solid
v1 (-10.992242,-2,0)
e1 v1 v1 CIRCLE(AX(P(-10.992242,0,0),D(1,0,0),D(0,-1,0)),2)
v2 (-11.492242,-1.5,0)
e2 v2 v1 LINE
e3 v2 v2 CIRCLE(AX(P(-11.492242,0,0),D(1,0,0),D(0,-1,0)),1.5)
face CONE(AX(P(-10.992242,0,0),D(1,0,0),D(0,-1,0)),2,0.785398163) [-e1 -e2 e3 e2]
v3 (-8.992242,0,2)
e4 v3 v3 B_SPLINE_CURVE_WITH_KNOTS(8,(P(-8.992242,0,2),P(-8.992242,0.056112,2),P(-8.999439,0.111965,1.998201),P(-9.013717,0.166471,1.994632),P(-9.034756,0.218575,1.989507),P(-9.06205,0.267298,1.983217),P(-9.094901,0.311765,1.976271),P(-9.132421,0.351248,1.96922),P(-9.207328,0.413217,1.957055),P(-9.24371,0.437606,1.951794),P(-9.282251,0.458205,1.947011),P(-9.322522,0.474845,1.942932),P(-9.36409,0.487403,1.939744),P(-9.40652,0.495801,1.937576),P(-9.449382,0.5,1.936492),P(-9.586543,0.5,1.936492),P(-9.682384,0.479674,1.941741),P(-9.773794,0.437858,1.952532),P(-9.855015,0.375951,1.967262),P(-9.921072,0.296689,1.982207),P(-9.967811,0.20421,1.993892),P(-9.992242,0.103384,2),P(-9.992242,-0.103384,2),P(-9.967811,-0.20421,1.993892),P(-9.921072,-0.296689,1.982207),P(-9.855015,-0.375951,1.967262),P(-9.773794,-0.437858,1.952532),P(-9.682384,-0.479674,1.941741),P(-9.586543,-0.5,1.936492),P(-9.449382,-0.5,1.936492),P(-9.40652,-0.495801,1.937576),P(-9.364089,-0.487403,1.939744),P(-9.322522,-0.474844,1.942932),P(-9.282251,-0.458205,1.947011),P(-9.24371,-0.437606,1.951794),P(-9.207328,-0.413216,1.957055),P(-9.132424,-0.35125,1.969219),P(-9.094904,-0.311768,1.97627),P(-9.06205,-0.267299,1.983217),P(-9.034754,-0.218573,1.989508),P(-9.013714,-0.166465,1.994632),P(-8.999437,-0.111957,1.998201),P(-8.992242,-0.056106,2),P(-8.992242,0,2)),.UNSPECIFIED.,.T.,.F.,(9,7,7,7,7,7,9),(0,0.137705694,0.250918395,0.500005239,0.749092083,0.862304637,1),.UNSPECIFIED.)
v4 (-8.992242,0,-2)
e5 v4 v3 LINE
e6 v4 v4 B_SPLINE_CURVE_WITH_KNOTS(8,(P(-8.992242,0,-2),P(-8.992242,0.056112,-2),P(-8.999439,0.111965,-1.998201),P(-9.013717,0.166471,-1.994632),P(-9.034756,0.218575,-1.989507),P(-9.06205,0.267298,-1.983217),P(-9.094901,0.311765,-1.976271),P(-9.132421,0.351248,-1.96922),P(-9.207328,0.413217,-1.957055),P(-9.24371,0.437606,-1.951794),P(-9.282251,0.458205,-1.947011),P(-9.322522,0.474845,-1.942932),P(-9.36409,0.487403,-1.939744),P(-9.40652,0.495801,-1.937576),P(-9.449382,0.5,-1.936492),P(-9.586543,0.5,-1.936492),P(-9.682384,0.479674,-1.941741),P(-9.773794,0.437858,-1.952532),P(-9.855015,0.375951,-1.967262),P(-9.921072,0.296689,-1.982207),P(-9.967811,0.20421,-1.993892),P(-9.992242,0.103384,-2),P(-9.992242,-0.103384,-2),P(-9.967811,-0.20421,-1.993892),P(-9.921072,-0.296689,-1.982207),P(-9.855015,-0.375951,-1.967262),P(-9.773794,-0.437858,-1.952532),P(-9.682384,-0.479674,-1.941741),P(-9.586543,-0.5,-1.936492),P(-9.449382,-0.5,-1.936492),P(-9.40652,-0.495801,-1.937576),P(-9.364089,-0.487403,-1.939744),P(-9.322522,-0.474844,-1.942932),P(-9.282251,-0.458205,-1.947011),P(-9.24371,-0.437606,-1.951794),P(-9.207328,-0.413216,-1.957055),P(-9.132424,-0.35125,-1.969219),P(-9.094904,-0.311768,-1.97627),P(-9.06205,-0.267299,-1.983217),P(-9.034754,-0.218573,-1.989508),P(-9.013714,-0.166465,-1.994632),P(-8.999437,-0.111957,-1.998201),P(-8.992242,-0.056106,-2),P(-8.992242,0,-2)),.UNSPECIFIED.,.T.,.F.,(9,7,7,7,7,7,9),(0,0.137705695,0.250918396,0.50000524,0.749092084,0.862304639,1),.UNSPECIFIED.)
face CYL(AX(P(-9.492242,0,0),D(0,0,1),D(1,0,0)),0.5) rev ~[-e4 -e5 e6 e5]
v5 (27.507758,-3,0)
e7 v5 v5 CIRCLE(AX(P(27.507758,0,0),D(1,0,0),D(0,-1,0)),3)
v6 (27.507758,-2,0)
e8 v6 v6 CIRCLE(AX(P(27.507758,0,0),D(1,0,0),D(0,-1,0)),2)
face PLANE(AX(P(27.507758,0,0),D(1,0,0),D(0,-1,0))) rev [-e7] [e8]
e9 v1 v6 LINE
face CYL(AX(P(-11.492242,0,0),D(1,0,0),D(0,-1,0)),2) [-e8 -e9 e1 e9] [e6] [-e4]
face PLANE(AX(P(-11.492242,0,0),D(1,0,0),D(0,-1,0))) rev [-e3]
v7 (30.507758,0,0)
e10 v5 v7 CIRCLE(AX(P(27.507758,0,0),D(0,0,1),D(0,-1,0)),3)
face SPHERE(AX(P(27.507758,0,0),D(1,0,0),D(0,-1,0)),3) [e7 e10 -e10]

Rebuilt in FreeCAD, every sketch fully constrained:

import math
import FreeCAD as App
import Part
import Sketcher
Q = App.Units.Quantity


def edges_at(feature, points):
    """Names of the edges that pass closest to the given points."""
    edges = feature.Shape.Edges
    near = lambda p: min(range(len(edges)), key=lambda i: edges[i].distToShape(Part.Vertex(*p))[0])
    return sorted({f"Edge{near(p) + 1}" for p in points})

doc = App.newDocument("Part")
body = doc.addObject("PartDesign::Body", "Body")

sketch1 = body.newObject("Sketcher::SketchObject", "Sketch")
sketch1.AttachmentSupport = (doc.getObject("XY_Plane"), [""])
sketch1.MapMode = "FlatFace"
sketch1.addGeometry(Part.LineSegment(App.Vector(-11.492242, 0, 0), App.Vector(-11.492242, -2, 0)), False)
sketch1.addGeometry(Part.LineSegment(App.Vector(-11.492242, -2, 0), App.Vector(27.507758, -2, 0)), False)
sketch1.addGeometry(Part.LineSegment(App.Vector(27.507758, -2, 0), App.Vector(27.507758, -3, 0)), False)
sketch1.addGeometry(Part.ArcOfCircle(Part.Circle(App.Vector(27.507758, 0, 0), App.Vector(0, 0, 1), 3), math.radians(-90), math.radians(0)), False)
sketch1.addGeometry(Part.LineSegment(App.Vector(30.507758, 0, 0), App.Vector(-11.492242, 0, 0)), False)
sketch1.addConstraint(Sketcher.Constraint("Coincident", 0, 2, 1, 1))
sketch1.addConstraint(Sketcher.Constraint("Coincident", 1, 2, 2, 1))
sketch1.addConstraint(Sketcher.Constraint("Coincident", 2, 2, 3, 1))
sketch1.addConstraint(Sketcher.Constraint("Coincident", 3, 2, 4, 1))
sketch1.addConstraint(Sketcher.Constraint("Coincident", 4, 2, 0, 1))
sketch1.addConstraint(Sketcher.Constraint("Vertical", 0))
sketch1.addConstraint(Sketcher.Constraint("Horizontal", 1))
sketch1.addConstraint(Sketcher.Constraint("Vertical", 2))
sketch1.addConstraint(Sketcher.Constraint("Horizontal", 4))
sketch1.addConstraint(Sketcher.Constraint("PointOnObject", 3, 3, -1))
sketch1.addConstraint(Sketcher.Constraint("PointOnObject", 3, 2, -1))
sketch1.addConstraint(Sketcher.Constraint("Vertical", 3, 3, 1, 2))
sketch1.addConstraint(Sketcher.Constraint("Radius", 3, Q("3 mm")))
sketch1.addConstraint(Sketcher.Constraint("DistanceX", 1, 1, 1, 2, Q("39 mm")))
sketch1.addConstraint(Sketcher.Constraint("DistanceY", 0, 2, 0, 1, Q("2 mm")))
sketch1.addConstraint(Sketcher.Constraint("DistanceX", -1, 1, 3, 3, Q("27.507758 mm")))
revolution = body.newObject("PartDesign::Revolution", "Revolution")
revolution.Profile = sketch1
revolution.ReferenceAxis = (sketch1, ["H_Axis"])
revolution.Angle = 360

sketch2 = body.newObject("Sketcher::SketchObject", "Sketch001")
sketch2.AttachmentSupport = (doc.getObject("XY_Plane"), [""])
sketch2.MapMode = "FlatFace"
sketch2.addGeometry(Part.Circle(App.Vector(-9.492242, 0, 0), App.Vector(0, 0, 1), 0.5), False)
sketch2.addConstraint(Sketcher.Constraint("PointOnObject", 0, 3, -1))
sketch2.addConstraint(Sketcher.Constraint("Diameter", 0, Q("1 mm")))
sketch2.addConstraint(Sketcher.Constraint("DistanceX", 0, 3, -1, 1, Q("9.492242 mm")))
pocket1 = body.newObject("PartDesign::Pocket", "Pocket")
pocket1.Profile = sketch2
pocket1.Length = 10
pocket1.Midplane = True
doc.recompute()

chamfer = body.newObject("PartDesign::Chamfer", "Chamfer")
chamfer.Base = (pocket1, edges_at(pocket1, [(-11.492, 2, 0)]))
chamfer.Size = 0.5

doc.recompute()
